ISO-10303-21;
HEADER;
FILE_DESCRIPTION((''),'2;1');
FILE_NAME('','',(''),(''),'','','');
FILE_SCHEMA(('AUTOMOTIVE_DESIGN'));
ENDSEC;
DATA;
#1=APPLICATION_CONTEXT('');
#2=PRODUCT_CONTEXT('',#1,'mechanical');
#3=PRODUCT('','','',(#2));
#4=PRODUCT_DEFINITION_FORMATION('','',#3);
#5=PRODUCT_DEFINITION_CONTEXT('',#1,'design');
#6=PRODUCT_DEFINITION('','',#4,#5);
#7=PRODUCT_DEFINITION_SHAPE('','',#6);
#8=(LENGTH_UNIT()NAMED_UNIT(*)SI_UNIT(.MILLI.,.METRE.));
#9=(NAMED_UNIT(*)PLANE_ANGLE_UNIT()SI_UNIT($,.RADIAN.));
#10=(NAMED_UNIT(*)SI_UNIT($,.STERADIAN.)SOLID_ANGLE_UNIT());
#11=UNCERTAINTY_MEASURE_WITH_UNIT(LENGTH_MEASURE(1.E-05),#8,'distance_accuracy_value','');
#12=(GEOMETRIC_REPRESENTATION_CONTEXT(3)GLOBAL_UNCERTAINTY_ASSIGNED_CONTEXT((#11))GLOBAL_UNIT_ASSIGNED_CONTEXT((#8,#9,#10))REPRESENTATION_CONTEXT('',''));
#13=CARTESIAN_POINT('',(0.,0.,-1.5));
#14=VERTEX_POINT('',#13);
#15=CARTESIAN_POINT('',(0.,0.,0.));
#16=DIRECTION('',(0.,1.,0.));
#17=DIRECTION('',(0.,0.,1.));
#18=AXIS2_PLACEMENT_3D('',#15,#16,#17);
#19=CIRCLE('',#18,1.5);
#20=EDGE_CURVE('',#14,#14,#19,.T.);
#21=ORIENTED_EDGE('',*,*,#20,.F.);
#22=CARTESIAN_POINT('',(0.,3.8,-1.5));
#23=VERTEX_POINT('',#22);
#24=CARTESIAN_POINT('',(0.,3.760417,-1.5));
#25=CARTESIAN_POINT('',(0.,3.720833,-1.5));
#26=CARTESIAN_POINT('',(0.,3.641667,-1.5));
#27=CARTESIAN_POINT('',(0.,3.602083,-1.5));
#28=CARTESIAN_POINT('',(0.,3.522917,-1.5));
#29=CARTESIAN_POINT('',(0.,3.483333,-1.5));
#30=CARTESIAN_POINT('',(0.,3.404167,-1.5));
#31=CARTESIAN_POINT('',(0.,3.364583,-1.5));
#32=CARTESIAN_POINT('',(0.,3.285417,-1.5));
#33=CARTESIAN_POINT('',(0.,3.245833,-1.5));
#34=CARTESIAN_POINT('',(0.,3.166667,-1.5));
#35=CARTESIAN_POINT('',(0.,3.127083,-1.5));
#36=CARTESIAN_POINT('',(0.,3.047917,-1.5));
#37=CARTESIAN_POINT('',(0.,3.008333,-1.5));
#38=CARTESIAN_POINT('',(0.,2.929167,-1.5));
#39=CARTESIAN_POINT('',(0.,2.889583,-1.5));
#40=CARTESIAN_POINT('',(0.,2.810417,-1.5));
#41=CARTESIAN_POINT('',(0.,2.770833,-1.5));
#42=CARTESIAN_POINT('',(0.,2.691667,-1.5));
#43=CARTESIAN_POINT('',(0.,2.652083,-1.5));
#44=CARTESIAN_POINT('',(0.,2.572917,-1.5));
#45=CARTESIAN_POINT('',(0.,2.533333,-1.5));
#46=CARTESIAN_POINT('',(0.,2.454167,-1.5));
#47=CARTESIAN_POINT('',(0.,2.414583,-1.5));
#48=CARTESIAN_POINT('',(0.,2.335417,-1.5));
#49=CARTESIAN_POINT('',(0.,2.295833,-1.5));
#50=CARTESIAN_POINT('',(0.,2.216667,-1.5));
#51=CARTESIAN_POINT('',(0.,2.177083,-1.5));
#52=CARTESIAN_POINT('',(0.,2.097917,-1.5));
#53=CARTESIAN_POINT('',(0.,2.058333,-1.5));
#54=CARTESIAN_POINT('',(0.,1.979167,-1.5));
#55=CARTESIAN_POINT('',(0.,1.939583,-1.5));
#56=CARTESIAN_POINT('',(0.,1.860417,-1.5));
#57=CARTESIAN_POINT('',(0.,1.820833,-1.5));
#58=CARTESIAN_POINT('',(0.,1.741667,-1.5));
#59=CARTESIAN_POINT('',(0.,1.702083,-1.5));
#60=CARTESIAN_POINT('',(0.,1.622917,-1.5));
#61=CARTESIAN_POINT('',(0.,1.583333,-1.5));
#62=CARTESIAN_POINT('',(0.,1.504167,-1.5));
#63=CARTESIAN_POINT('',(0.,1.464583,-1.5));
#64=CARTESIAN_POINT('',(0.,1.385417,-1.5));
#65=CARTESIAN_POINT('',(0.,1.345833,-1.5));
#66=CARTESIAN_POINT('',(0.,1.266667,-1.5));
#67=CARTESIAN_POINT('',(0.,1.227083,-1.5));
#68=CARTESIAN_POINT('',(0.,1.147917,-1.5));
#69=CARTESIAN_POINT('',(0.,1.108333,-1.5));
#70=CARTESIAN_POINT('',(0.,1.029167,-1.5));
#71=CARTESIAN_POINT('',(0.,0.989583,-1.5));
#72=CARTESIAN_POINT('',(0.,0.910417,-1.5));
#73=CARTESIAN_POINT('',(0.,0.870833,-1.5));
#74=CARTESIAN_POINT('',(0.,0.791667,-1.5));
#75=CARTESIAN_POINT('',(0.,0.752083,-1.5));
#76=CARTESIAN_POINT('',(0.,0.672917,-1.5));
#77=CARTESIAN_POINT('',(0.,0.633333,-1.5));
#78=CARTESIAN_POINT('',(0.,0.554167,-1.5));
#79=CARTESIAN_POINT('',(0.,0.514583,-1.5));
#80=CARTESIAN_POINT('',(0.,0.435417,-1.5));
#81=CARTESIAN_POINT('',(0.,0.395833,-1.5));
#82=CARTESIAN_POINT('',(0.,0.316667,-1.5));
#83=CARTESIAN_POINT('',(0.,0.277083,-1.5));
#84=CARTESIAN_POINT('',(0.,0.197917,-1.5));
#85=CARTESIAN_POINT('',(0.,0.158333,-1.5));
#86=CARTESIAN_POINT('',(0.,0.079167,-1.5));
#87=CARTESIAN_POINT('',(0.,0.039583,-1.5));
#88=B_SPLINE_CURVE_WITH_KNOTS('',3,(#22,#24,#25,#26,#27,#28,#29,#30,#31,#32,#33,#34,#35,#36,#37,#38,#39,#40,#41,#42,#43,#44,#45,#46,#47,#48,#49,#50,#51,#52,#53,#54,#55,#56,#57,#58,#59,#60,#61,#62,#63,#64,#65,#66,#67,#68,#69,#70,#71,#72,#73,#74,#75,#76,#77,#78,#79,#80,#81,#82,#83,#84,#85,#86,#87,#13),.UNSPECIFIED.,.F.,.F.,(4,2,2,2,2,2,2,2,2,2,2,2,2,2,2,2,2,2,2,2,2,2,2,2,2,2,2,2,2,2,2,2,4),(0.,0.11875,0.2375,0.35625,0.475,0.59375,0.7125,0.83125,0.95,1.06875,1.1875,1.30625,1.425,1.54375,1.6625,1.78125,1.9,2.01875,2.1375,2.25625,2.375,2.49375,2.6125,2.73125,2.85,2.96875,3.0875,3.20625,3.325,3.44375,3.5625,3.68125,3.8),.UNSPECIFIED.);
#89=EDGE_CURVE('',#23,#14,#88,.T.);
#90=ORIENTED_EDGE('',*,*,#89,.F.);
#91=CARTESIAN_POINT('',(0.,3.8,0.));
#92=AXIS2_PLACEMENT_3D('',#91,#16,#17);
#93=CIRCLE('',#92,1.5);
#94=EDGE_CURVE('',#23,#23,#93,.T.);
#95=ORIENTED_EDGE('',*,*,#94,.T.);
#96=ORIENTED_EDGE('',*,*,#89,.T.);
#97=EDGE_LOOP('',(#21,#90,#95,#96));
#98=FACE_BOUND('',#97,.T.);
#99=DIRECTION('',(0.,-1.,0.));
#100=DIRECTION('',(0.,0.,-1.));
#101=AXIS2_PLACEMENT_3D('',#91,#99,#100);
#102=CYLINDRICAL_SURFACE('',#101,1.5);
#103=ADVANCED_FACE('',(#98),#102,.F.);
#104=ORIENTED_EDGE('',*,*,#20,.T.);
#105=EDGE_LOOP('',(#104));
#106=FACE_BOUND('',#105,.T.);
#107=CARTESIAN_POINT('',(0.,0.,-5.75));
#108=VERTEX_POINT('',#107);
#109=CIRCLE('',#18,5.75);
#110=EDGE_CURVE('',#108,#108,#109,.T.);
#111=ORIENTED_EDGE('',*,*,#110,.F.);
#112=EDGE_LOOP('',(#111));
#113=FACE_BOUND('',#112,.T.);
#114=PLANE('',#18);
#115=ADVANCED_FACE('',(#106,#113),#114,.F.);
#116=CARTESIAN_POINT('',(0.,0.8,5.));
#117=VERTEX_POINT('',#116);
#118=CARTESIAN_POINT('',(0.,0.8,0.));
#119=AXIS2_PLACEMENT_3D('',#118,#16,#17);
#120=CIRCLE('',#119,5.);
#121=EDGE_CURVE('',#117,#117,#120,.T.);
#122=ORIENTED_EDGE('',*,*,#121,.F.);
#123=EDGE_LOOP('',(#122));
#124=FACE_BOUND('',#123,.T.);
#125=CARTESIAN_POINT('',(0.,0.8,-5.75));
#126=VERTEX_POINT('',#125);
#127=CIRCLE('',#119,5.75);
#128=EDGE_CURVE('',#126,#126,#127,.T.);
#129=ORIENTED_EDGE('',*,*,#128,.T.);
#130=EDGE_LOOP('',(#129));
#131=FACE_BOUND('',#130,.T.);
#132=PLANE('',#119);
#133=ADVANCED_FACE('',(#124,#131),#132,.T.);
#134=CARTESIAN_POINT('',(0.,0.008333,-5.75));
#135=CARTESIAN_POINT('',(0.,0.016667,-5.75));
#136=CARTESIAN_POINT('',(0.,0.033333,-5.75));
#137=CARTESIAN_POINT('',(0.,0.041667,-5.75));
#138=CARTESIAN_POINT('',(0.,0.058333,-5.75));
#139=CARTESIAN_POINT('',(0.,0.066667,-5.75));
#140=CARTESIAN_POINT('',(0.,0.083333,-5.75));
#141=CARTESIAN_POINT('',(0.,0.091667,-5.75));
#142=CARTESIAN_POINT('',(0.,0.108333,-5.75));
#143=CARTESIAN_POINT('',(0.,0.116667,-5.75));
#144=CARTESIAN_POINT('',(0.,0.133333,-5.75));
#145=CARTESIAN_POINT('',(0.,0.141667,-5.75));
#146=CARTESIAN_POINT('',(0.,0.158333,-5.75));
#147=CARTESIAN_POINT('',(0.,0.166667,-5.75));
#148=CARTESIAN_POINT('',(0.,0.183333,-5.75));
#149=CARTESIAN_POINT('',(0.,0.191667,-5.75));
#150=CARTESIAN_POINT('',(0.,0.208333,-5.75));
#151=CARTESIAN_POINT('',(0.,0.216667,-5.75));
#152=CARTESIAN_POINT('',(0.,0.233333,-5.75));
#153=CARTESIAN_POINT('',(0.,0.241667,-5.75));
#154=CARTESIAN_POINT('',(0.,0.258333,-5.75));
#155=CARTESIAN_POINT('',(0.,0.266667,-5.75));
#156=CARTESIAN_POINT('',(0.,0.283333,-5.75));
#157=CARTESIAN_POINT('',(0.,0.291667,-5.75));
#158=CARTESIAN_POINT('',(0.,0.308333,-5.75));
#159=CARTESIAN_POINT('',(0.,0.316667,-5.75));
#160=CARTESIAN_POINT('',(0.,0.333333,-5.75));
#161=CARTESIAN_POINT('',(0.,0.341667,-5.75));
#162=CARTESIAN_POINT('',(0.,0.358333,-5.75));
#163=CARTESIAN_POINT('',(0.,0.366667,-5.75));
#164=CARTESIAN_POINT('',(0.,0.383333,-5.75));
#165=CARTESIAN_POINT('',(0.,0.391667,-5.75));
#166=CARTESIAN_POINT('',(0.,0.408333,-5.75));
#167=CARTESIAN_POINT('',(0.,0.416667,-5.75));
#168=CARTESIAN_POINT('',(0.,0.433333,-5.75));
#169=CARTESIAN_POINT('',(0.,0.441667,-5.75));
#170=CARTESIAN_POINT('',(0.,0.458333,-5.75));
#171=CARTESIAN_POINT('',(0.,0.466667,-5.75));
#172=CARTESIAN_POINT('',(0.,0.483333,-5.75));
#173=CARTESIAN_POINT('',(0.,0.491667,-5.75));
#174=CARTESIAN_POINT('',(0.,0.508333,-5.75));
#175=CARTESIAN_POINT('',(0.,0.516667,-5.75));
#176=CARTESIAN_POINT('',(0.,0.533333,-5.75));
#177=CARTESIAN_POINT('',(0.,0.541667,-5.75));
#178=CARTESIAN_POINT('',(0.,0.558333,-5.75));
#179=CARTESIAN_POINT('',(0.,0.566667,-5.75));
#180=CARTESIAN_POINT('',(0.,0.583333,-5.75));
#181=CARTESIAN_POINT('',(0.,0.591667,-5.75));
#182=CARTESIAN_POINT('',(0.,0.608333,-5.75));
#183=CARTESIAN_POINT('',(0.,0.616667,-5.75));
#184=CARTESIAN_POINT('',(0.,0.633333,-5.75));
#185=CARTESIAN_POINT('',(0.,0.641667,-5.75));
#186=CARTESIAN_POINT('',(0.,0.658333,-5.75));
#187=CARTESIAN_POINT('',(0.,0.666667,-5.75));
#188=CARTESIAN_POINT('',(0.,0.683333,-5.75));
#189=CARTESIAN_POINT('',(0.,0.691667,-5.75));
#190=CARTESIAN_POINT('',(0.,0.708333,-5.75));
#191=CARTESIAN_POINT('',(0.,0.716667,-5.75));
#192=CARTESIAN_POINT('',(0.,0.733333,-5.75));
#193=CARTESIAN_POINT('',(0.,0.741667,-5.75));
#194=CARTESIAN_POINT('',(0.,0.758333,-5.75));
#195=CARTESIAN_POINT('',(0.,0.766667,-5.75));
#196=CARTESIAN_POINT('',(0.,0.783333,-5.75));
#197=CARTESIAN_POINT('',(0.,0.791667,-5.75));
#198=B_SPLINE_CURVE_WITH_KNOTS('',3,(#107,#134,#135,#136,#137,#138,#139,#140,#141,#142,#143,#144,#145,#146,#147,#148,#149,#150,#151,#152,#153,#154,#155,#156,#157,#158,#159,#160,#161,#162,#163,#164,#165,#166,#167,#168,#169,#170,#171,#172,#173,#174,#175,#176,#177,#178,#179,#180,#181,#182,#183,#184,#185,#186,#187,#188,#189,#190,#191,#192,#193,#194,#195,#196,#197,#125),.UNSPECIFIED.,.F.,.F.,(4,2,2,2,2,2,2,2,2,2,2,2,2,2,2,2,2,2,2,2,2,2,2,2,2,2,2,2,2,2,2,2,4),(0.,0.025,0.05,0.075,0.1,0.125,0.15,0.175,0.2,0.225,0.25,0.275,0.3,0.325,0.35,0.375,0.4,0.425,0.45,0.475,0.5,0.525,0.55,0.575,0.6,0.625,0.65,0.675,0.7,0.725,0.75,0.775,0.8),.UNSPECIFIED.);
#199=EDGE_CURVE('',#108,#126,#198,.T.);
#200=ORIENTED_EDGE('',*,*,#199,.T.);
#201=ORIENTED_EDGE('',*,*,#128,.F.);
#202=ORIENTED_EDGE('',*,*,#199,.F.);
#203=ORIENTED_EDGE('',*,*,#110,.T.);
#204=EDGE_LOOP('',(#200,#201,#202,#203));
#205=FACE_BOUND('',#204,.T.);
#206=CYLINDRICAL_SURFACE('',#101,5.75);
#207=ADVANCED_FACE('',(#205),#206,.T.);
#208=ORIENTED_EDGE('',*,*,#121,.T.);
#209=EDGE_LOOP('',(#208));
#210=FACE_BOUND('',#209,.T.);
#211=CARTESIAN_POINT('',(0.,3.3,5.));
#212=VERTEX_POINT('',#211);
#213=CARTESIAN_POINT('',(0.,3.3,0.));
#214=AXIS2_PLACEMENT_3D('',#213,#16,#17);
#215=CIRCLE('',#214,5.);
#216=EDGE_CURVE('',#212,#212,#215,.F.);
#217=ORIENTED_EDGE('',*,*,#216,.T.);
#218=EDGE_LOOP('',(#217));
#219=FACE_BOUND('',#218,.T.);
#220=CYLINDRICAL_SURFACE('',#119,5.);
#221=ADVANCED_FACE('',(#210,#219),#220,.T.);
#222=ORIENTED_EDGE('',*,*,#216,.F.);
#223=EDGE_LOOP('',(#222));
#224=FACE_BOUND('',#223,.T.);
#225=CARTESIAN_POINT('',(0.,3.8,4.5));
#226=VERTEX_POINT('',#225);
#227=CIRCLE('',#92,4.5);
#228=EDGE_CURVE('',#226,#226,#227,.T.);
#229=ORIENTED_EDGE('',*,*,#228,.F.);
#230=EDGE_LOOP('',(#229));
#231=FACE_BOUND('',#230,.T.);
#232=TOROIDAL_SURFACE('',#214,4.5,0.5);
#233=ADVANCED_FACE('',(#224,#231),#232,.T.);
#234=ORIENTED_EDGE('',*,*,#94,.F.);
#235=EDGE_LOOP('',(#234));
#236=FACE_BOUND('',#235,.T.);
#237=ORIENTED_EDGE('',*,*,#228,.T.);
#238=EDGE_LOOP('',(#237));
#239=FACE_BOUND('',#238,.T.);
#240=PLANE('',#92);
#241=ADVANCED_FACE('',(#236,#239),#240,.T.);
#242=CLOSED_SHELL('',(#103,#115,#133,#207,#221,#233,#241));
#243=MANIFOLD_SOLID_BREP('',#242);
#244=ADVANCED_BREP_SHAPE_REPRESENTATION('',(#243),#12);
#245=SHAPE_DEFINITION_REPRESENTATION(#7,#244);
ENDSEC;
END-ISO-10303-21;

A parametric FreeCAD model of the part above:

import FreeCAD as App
import Part
import Sketcher

V = App.Vector


def edges_at(feature, points):
    """Names of the edges that pass closest to the given points."""
    edges = feature.Shape.Edges
    near = lambda p: min(range(len(edges)), key=lambda i: edges[i].distToShape(Part.Vertex(*p))[0])
    return sorted({f"Edge{near(p) + 1}" for p in points})

doc = App.newDocument("Part")
body = doc.addObject("PartDesign::Body", "Body")

sketch1 = body.newObject("Sketcher::SketchObject", "Sketch")
sketch1.AttachmentSupport = (doc.getObject("XZ_Plane"), [""])
sketch1.MapMode = "FlatFace"
sketch1.addGeometry([
    Part.Circle(V(0, 0, 0), V(0, 0, 1), 5.75),
    Part.Circle(V(0, 0, 0), V(0, 0, 1), 1.5),
], False)
sketch1.addConstraint([
    Sketcher.Constraint("Coincident", 0, 3, -1, 1),
    Sketcher.Constraint("Coincident", 1, 3, -1, 1),
    Sketcher.Constraint("Diameter", 1, 3.0),
    Sketcher.Constraint("Diameter", 0, 11.5),
])
pad1 = body.newObject("PartDesign::Pad", "Pad")
pad1.Profile = sketch1
pad1.Length = 3.8
pad1.Reversed = True

sketch2 = body.newObject("Sketcher::SketchObject", "Sketch001")
sketch2.AttachmentSupport = (doc.getObject("XZ_Plane"), [""])
sketch2.MapMode = "FlatFace"
sketch2.AttachmentOffset = App.Placement(V(0, 0, -3.8), App.Rotation())
sketch2.addGeometry([
    Part.LineSegment(V(-8.42, -8.42, 0), V(-8.42, 8.42, 0)),
    Part.LineSegment(V(-8.42, 8.42, 0), V(8.42, 8.42, 0)),
    Part.LineSegment(V(8.42, 8.42, 0), V(8.42, -8.42, 0)),
    Part.LineSegment(V(8.42, -8.42, 0), V(-8.42, -8.42, 0)),
    Part.Circle(V(0, 0, 0), V(0, 0, 1), 5),
], False)
sketch2.addConstraint([
    Sketcher.Constraint("Coincident", 0, 2, 1, 1),
    Sketcher.Constraint("Coincident", 1, 2, 2, 1),
    Sketcher.Constraint("Coincident", 2, 2, 3, 1),
    Sketcher.Constraint("Coincident", 3, 2, 0, 1),
    Sketcher.Constraint("Vertical", 0),
    Sketcher.Constraint("Horizontal", 1),
    Sketcher.Constraint("Vertical", 2),
    Sketcher.Constraint("Horizontal", 3),
    Sketcher.Constraint("Coincident", 4, 3, -1, 1),
    Sketcher.Constraint("Symmetric", 0, 2, 2, 2, -1, 1),
    Sketcher.Constraint("Equal", 3, 0),
    Sketcher.Constraint("Diameter", 4, 10.0),
    Sketcher.Constraint("DistanceX", 1, 1, 1, 2, 16.84),
])
pocket1 = body.newObject("PartDesign::Pocket", "Pocket")
pocket1.Profile = sketch2
pocket1.Length = 3
pocket1.Reversed = True
doc.recompute()

fillet = body.newObject("PartDesign::Fillet", "Fillet")
fillet.Base = (pocket1, edges_at(pocket1, [(0, 3.8, -5)]))
fillet.Radius = 0.5

doc.recompute()
